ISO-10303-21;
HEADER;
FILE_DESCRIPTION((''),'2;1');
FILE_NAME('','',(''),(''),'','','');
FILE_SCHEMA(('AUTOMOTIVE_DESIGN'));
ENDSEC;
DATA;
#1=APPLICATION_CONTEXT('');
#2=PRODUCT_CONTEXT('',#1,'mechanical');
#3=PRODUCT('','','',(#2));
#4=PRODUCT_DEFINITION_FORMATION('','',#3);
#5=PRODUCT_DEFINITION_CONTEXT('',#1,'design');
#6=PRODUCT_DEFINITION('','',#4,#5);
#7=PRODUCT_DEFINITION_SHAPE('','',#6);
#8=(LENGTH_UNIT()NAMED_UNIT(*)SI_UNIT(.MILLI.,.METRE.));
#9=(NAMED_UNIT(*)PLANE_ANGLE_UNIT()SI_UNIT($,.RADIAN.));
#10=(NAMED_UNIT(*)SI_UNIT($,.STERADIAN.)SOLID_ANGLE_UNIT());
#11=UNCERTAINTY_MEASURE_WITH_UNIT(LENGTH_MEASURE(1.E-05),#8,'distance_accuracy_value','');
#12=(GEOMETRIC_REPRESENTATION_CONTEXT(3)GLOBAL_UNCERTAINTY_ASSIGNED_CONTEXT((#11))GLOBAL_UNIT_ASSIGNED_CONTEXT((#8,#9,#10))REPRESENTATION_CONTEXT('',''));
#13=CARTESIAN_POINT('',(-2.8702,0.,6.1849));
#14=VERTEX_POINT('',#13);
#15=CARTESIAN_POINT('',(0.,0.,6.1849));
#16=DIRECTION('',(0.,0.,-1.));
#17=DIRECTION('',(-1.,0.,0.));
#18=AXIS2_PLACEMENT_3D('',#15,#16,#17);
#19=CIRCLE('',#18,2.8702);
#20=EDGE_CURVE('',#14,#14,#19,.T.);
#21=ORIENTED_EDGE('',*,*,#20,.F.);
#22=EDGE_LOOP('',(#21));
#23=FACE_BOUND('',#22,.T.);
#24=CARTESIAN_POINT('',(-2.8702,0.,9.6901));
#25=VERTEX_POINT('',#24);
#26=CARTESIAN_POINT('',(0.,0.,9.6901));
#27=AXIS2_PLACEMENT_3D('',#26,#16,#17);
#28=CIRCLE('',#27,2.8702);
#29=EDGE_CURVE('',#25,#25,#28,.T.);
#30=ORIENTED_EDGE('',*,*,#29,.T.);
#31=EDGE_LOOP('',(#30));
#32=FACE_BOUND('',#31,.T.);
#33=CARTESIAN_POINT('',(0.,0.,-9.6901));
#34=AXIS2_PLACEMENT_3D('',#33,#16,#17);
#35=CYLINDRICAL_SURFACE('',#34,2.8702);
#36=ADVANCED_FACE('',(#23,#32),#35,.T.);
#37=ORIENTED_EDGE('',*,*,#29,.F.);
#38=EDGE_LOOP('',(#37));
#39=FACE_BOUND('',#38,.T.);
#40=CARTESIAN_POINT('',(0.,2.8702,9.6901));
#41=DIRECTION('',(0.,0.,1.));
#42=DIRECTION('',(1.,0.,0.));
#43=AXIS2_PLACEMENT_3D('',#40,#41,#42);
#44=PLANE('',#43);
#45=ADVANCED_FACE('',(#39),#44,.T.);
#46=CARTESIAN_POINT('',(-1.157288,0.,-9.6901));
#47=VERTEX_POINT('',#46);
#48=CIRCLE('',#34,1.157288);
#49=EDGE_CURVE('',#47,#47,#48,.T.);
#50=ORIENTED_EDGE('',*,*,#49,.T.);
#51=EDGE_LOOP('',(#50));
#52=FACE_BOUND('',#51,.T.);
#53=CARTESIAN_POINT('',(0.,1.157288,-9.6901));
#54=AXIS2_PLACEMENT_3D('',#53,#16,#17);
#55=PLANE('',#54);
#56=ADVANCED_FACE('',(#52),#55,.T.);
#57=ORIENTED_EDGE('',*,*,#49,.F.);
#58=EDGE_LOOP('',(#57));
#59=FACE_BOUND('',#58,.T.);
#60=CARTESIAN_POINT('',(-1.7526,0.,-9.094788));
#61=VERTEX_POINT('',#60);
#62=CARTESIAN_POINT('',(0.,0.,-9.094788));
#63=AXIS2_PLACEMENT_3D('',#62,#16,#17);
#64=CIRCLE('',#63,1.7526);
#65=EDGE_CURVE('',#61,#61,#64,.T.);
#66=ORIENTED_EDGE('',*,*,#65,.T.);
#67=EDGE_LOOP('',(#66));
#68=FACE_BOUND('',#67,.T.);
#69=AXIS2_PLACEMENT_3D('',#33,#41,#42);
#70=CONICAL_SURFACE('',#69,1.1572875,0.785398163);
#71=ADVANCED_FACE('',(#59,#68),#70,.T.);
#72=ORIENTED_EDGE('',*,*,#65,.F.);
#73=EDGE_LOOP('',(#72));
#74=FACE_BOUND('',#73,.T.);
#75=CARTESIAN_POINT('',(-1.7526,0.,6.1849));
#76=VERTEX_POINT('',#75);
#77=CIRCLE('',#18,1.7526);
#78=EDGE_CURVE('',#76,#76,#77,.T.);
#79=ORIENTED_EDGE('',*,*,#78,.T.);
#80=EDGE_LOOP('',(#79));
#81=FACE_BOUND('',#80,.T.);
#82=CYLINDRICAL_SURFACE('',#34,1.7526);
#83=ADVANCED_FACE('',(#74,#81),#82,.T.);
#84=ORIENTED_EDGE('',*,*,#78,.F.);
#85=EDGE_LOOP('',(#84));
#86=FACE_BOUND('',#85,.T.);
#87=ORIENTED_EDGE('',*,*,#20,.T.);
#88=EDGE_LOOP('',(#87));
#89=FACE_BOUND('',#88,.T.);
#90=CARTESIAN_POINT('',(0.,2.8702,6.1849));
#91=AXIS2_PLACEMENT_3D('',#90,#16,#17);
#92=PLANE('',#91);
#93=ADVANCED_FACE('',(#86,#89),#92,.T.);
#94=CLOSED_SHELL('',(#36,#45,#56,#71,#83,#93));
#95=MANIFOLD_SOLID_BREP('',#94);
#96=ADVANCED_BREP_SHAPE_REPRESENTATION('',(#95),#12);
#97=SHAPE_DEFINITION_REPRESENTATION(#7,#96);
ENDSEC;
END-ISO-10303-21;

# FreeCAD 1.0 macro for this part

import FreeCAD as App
import Part
import Sketcher
Q = App.Units.Quantity

doc = App.newDocument("Part")
body = doc.addObject("PartDesign::Body", "Body")

sketch1 = body.newObject("Sketcher::SketchObject", "Sketch")
sketch1.AttachmentSupport = (doc.getObject("YZ_Plane"), [""])
sketch1.MapMode = "FlatFace"
sketch1.addGeometry([
    Part.LineSegment(App.Vector(1.2, -9.7, 0), App.Vector(1.8, -9.1, 0)),
    Part.LineSegment(App.Vector(1.8, -9.1, 0), App.Vector(1.8, 6.2, 0)),
    Part.LineSegment(App.Vector(1.8, 6.2, 0), App.Vector(2.9, 6.2, 0)),
    Part.LineSegment(App.Vector(2.9, 6.2, 0), App.Vector(2.9, 9.7, 0)),
    Part.LineSegment(App.Vector(2.9, 9.7, 0), App.Vector(0, 9.7, 0)),
    Part.LineSegment(App.Vector(0, 9.7, 0), App.Vector(0, -9.7, 0)),
    Part.LineSegment(App.Vector(0, -9.7, 0), App.Vector(1.2, -9.7, 0)),
], False)
sketch1.addConstraint([
    Sketcher.Constraint("Coincident", 0, 2, 1, 1),
    Sketcher.Constraint("Coincident", 1, 2, 2, 1),
    Sketcher.Constraint("Coincident", 2, 2, 3, 1),
    Sketcher.Constraint("Coincident", 3, 2, 4, 1),
    Sketcher.Constraint("Coincident", 4, 2, 5, 1),
    Sketcher.Constraint("Coincident", 5, 2, 6, 1),
    Sketcher.Constraint("Coincident", 6, 2, 0, 1),
    Sketcher.Constraint("Vertical", 1),
    Sketcher.Constraint("Horizontal", 2),
    Sketcher.Constraint("Vertical", 3),
    Sketcher.Constraint("Horizontal", 4),
    Sketcher.Constraint("Vertical", 5),
    Sketcher.Constraint("Horizontal", 6),
    Sketcher.Constraint("Symmetric", 4, 2, 5, 2, -1, 1),
    Sketcher.Constraint("Angle", 0, Q("45 deg")),
    Sketcher.Constraint("DistanceX", 2, 1, 2, 2, Q("0.044 in")),
    Sketcher.Constraint("DistanceX", 4, 2, 4, 1, Q("0.113 in")),
    Sketcher.Constraint("DistanceY", 3, 1, 3, 2, Q("0.138 in")),
    Sketcher.Constraint("DistanceY", 5, 2, 5, 1, Q("0.763 in")),
    Sketcher.Constraint("Distance", 0, Q("0.841899 mm")),
])
revolution = body.newObject("PartDesign::Revolution", "Revolution")
revolution.Profile = sketch1
revolution.ReferenceAxis = (sketch1, ["V_Axis"])
revolution.Angle = 360

doc.recompute()
